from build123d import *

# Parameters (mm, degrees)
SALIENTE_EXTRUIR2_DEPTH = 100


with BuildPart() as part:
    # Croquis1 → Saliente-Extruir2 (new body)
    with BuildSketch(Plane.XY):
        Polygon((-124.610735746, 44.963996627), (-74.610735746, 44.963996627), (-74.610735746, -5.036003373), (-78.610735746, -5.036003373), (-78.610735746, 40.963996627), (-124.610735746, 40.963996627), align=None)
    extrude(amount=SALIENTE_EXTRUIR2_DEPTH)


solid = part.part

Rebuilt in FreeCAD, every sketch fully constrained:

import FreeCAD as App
import Part
import Sketcher

V = App.Vector


def add_polygon(sketch, points):
    """Adds a closed chain of lines whose ends are joined by coincident constraints."""
    first, n = sketch.GeometryCount, len(points)
    for a, b in zip(points, points[1:] + points[:1]):
        sketch.addGeometry(Part.LineSegment(App.Vector(*a, 0), App.Vector(*b, 0)), False)
    for i in range(n):
        sketch.addConstraint(Sketcher.Constraint("Coincident", first + i, 2, first + (i + 1) % n, 1))

doc = App.newDocument("Part")
params = doc.addObject("Spreadsheet::Sheet", "Params")
for row, (alias, value) in enumerate([
    ("sketch1_width", "50 mm"),
    ("sketch1_width2", "46 mm"),
    ("pad1_length", "100 mm"),
], start=1):
    params.set(f"A{row}", alias)
    params.set(f"B{row}", "=" + value)
    params.setAlias(f"B{row}", alias)

body = doc.addObject("PartDesign::Body", "Body")

sketch1 = doc.addObject("Sketcher::SketchObject", "Sketch")
body.addObject(sketch1)
sketch1.AttachmentSupport = (doc.XY_Plane, [""])
sketch1.MapMode = "FlatFace"
add_polygon(sketch1, [(-74.6, 45), (-124.6, 45), (-124.6, 41), (-78.6, 41), (-78.6, -5), (-74.6, -5)])
sketch1.addConstraint(Sketcher.Constraint("Horizontal", 0))
sketch1.addConstraint(Sketcher.Constraint("Vertical", 1))
sketch1.addConstraint(Sketcher.Constraint("Horizontal", 2))
sketch1.addConstraint(Sketcher.Constraint("Vertical", 3))
sketch1.addConstraint(Sketcher.Constraint("Horizontal", 4))
sketch1.addConstraint(Sketcher.Constraint("Vertical", 5))
sketch1.addConstraint(Sketcher.Constraint("Equal", 4, 1))
sketch1.addConstraint(Sketcher.Constraint("Equal", 2, 3))
sketch1.addConstraint(Sketcher.Constraint("DistanceX", 0, 2, 0, 1, 50.0))
sketch1.addConstraint(Sketcher.Constraint("DistanceX", 2, 1, 2, 2, 46.0))
sketch1.addConstraint(Sketcher.Constraint("DistanceX", 0, 2, -1, 1, 124.610736))
sketch1.addConstraint(Sketcher.Constraint("DistanceY", -1, 1, 0, 2, 44.963997))
sketch1.setExpression("Constraints[14]", "Params.sketch1_width")
sketch1.setExpression("Constraints[15]", "Params.sketch1_width2")
pad1 = doc.addObject("PartDesign::Pad", "Pad")
body.addObject(pad1)
pad1.Profile = sketch1
pad1.setExpression("Length", "Params.pad1_length")

doc.recompute()
